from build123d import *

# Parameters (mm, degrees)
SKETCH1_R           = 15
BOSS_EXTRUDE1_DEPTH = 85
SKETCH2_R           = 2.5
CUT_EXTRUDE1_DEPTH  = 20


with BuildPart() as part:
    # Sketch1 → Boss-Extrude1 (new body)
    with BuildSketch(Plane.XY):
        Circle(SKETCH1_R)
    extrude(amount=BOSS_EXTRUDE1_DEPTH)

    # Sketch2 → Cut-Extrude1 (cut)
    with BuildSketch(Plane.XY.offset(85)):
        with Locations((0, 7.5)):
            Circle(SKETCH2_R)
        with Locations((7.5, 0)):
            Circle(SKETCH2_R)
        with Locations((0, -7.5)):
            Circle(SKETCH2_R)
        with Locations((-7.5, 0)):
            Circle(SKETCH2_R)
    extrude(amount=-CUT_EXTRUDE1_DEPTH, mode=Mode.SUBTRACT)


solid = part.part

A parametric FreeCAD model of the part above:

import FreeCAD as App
import Part
import Sketcher

V = App.Vector

doc = App.newDocument("Part")
body = doc.addObject("PartDesign::Body", "Body")

sketch1 = body.newObject("Sketcher::SketchObject", "Sketch")
sketch1.AttachmentSupport = (doc.getObject("XY_Plane"), [""])
sketch1.MapMode = "FlatFace"
sketch1.addGeometry(Part.Circle(V(0, 0, 0), V(0, 0, 1), 15), False)
sketch1.addConstraint([
    Sketcher.Constraint("Coincident", 0, 3, -1, 1),
    Sketcher.Constraint("Diameter", 0, 30.0),
])
pad1 = body.newObject("PartDesign::Pad", "Pad")
pad1.Profile = sketch1
pad1.Length = 85

sketch2 = body.newObject("Sketcher::SketchObject", "Sketch001")
sketch2.AttachmentSupport = (doc.getObject("XY_Plane"), [""])
sketch2.MapMode = "FlatFace"
sketch2.AttachmentOffset = App.Placement(V(0, 0, 85), App.Rotation())
sketch2.addGeometry([
    Part.Circle(V(0, 7.5, 0), V(0, 0, 1), 2.5),
    Part.Circle(V(7.5, 0, 0), V(0, 0, 1), 2.5),
    Part.Circle(V(0, -7.5, 0), V(0, 0, 1), 2.5),
    Part.Circle(V(-7.5, 0, 0), V(0, 0, 1), 2.5),
], False)
sketch2.addConstraint([
    Sketcher.Constraint("Equal", 0, 1),
    Sketcher.Constraint("Equal", 1, 2),
    Sketcher.Constraint("Equal", 2, 3),
    Sketcher.Constraint("Symmetric", 0, 3, 2, 3, -1, 1),
    Sketcher.Constraint("Symmetric", 1, 3, 3, 3, -1, 1),
    Sketcher.Constraint("PointOnObject", 0, 3, -2),
    Sketcher.Constraint("PointOnObject", 1, 3, -1),
    Sketcher.Constraint("Diameter", 0, 5.0),
    Sketcher.Constraint("DistanceY", 2, 3, 0, 3, 15.0),
    Sketcher.Constraint("DistanceX", 3, 3, 1, 3, 15.0),
])
pocket1 = body.newObject("PartDesign::Pocket", "Pocket")
pocket1.Profile = sketch2
pocket1.Length = 20

doc.recompute()
